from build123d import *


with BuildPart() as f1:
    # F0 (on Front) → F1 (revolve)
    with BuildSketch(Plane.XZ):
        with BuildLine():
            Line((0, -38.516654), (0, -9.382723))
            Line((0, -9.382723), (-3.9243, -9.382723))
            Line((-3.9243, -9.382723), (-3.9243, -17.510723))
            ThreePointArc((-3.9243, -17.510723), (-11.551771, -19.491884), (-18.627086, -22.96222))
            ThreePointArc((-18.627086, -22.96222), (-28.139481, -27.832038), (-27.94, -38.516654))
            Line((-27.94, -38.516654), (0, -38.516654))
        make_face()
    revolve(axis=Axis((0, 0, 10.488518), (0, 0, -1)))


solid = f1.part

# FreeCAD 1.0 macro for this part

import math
import FreeCAD as App
import Part
import Sketcher

V = App.Vector
Q = App.Units.Quantity

doc = App.newDocument("Part")
body = doc.addObject("PartDesign::Body", "Body")

sketch1 = body.newObject("Sketcher::SketchObject", "Sketch")
sketch1.AttachmentSupport = (doc.getObject("XZ_Plane"), [""])
sketch1.MapMode = "FlatFace"
sketch1.addGeometry([
    Part.LineSegment(V(0, -38.5, 0), V(0, -9.4, 0)),
    Part.LineSegment(V(0, -9.4, 0), V(-3.9, -9.4, 0)),
    Part.LineSegment(V(-3.9, -9.4, 0), V(-3.9, -17.5, 0)),
    Part.ArcOfCircle(Part.Circle(V(2, -56.2, 0), V(0, 0, 1), 39.1), math.radians(99), math.radians(122)),
    Part.ArcOfCircle(Part.Circle(V(-19.5, -33, 0), V(0, 0, 1), 10.1), math.radians(85), math.radians(213)),
    Part.LineSegment(V(-27.9, -38.5, 0), V(0, -38.5, 0)),
], False)
sketch1.addConstraint([
    Sketcher.Constraint("Coincident", 0, 2, 1, 1),
    Sketcher.Constraint("Coincident", 1, 2, 2, 1),
    Sketcher.Constraint("Coincident", 2, 2, 3, 1),
    Sketcher.Constraint("Coincident", 3, 2, 4, 1),
    Sketcher.Constraint("Coincident", 4, 2, 5, 1),
    Sketcher.Constraint("Coincident", 5, 2, 0, 1),
    Sketcher.Constraint("Vertical", 0),
    Sketcher.Constraint("Horizontal", 1),
    Sketcher.Constraint("Vertical", 2),
    Sketcher.Constraint("Horizontal", 5),
    Sketcher.Constraint("PointOnObject", 0, 2, -2),
    Sketcher.Constraint("DistanceX", 5, 1, 5, 2, Q("1.1 in")),
    Sketcher.Constraint("DistanceY", 2, 2, 2, 1, Q("0.32 in")),
    Sketcher.Constraint("DistanceX", 1, 2, 1, 1, Q("0.1545 in")),
    Sketcher.Constraint("Radius", 3, 39.101876),
    Sketcher.Constraint("Radius", 4, 10.088803),
    Sketcher.Constraint("DistanceY", 0, 1, 0, 2, 29.133931),
    Sketcher.Constraint("DistanceY", 3, 3, -1, 1, 56.154728),
    Sketcher.Constraint("DistanceX", 4, 3, -1, 1, 19.48356),
    Sketcher.Constraint("DistanceY", 3, 2, -1, 1, 22.96222),
])
revolution = body.newObject("PartDesign::Revolution", "Revolution")
revolution.Profile = sketch1
revolution.ReferenceAxis = (sketch1, ["V_Axis"])
revolution.Angle = 360

doc.recompute()
